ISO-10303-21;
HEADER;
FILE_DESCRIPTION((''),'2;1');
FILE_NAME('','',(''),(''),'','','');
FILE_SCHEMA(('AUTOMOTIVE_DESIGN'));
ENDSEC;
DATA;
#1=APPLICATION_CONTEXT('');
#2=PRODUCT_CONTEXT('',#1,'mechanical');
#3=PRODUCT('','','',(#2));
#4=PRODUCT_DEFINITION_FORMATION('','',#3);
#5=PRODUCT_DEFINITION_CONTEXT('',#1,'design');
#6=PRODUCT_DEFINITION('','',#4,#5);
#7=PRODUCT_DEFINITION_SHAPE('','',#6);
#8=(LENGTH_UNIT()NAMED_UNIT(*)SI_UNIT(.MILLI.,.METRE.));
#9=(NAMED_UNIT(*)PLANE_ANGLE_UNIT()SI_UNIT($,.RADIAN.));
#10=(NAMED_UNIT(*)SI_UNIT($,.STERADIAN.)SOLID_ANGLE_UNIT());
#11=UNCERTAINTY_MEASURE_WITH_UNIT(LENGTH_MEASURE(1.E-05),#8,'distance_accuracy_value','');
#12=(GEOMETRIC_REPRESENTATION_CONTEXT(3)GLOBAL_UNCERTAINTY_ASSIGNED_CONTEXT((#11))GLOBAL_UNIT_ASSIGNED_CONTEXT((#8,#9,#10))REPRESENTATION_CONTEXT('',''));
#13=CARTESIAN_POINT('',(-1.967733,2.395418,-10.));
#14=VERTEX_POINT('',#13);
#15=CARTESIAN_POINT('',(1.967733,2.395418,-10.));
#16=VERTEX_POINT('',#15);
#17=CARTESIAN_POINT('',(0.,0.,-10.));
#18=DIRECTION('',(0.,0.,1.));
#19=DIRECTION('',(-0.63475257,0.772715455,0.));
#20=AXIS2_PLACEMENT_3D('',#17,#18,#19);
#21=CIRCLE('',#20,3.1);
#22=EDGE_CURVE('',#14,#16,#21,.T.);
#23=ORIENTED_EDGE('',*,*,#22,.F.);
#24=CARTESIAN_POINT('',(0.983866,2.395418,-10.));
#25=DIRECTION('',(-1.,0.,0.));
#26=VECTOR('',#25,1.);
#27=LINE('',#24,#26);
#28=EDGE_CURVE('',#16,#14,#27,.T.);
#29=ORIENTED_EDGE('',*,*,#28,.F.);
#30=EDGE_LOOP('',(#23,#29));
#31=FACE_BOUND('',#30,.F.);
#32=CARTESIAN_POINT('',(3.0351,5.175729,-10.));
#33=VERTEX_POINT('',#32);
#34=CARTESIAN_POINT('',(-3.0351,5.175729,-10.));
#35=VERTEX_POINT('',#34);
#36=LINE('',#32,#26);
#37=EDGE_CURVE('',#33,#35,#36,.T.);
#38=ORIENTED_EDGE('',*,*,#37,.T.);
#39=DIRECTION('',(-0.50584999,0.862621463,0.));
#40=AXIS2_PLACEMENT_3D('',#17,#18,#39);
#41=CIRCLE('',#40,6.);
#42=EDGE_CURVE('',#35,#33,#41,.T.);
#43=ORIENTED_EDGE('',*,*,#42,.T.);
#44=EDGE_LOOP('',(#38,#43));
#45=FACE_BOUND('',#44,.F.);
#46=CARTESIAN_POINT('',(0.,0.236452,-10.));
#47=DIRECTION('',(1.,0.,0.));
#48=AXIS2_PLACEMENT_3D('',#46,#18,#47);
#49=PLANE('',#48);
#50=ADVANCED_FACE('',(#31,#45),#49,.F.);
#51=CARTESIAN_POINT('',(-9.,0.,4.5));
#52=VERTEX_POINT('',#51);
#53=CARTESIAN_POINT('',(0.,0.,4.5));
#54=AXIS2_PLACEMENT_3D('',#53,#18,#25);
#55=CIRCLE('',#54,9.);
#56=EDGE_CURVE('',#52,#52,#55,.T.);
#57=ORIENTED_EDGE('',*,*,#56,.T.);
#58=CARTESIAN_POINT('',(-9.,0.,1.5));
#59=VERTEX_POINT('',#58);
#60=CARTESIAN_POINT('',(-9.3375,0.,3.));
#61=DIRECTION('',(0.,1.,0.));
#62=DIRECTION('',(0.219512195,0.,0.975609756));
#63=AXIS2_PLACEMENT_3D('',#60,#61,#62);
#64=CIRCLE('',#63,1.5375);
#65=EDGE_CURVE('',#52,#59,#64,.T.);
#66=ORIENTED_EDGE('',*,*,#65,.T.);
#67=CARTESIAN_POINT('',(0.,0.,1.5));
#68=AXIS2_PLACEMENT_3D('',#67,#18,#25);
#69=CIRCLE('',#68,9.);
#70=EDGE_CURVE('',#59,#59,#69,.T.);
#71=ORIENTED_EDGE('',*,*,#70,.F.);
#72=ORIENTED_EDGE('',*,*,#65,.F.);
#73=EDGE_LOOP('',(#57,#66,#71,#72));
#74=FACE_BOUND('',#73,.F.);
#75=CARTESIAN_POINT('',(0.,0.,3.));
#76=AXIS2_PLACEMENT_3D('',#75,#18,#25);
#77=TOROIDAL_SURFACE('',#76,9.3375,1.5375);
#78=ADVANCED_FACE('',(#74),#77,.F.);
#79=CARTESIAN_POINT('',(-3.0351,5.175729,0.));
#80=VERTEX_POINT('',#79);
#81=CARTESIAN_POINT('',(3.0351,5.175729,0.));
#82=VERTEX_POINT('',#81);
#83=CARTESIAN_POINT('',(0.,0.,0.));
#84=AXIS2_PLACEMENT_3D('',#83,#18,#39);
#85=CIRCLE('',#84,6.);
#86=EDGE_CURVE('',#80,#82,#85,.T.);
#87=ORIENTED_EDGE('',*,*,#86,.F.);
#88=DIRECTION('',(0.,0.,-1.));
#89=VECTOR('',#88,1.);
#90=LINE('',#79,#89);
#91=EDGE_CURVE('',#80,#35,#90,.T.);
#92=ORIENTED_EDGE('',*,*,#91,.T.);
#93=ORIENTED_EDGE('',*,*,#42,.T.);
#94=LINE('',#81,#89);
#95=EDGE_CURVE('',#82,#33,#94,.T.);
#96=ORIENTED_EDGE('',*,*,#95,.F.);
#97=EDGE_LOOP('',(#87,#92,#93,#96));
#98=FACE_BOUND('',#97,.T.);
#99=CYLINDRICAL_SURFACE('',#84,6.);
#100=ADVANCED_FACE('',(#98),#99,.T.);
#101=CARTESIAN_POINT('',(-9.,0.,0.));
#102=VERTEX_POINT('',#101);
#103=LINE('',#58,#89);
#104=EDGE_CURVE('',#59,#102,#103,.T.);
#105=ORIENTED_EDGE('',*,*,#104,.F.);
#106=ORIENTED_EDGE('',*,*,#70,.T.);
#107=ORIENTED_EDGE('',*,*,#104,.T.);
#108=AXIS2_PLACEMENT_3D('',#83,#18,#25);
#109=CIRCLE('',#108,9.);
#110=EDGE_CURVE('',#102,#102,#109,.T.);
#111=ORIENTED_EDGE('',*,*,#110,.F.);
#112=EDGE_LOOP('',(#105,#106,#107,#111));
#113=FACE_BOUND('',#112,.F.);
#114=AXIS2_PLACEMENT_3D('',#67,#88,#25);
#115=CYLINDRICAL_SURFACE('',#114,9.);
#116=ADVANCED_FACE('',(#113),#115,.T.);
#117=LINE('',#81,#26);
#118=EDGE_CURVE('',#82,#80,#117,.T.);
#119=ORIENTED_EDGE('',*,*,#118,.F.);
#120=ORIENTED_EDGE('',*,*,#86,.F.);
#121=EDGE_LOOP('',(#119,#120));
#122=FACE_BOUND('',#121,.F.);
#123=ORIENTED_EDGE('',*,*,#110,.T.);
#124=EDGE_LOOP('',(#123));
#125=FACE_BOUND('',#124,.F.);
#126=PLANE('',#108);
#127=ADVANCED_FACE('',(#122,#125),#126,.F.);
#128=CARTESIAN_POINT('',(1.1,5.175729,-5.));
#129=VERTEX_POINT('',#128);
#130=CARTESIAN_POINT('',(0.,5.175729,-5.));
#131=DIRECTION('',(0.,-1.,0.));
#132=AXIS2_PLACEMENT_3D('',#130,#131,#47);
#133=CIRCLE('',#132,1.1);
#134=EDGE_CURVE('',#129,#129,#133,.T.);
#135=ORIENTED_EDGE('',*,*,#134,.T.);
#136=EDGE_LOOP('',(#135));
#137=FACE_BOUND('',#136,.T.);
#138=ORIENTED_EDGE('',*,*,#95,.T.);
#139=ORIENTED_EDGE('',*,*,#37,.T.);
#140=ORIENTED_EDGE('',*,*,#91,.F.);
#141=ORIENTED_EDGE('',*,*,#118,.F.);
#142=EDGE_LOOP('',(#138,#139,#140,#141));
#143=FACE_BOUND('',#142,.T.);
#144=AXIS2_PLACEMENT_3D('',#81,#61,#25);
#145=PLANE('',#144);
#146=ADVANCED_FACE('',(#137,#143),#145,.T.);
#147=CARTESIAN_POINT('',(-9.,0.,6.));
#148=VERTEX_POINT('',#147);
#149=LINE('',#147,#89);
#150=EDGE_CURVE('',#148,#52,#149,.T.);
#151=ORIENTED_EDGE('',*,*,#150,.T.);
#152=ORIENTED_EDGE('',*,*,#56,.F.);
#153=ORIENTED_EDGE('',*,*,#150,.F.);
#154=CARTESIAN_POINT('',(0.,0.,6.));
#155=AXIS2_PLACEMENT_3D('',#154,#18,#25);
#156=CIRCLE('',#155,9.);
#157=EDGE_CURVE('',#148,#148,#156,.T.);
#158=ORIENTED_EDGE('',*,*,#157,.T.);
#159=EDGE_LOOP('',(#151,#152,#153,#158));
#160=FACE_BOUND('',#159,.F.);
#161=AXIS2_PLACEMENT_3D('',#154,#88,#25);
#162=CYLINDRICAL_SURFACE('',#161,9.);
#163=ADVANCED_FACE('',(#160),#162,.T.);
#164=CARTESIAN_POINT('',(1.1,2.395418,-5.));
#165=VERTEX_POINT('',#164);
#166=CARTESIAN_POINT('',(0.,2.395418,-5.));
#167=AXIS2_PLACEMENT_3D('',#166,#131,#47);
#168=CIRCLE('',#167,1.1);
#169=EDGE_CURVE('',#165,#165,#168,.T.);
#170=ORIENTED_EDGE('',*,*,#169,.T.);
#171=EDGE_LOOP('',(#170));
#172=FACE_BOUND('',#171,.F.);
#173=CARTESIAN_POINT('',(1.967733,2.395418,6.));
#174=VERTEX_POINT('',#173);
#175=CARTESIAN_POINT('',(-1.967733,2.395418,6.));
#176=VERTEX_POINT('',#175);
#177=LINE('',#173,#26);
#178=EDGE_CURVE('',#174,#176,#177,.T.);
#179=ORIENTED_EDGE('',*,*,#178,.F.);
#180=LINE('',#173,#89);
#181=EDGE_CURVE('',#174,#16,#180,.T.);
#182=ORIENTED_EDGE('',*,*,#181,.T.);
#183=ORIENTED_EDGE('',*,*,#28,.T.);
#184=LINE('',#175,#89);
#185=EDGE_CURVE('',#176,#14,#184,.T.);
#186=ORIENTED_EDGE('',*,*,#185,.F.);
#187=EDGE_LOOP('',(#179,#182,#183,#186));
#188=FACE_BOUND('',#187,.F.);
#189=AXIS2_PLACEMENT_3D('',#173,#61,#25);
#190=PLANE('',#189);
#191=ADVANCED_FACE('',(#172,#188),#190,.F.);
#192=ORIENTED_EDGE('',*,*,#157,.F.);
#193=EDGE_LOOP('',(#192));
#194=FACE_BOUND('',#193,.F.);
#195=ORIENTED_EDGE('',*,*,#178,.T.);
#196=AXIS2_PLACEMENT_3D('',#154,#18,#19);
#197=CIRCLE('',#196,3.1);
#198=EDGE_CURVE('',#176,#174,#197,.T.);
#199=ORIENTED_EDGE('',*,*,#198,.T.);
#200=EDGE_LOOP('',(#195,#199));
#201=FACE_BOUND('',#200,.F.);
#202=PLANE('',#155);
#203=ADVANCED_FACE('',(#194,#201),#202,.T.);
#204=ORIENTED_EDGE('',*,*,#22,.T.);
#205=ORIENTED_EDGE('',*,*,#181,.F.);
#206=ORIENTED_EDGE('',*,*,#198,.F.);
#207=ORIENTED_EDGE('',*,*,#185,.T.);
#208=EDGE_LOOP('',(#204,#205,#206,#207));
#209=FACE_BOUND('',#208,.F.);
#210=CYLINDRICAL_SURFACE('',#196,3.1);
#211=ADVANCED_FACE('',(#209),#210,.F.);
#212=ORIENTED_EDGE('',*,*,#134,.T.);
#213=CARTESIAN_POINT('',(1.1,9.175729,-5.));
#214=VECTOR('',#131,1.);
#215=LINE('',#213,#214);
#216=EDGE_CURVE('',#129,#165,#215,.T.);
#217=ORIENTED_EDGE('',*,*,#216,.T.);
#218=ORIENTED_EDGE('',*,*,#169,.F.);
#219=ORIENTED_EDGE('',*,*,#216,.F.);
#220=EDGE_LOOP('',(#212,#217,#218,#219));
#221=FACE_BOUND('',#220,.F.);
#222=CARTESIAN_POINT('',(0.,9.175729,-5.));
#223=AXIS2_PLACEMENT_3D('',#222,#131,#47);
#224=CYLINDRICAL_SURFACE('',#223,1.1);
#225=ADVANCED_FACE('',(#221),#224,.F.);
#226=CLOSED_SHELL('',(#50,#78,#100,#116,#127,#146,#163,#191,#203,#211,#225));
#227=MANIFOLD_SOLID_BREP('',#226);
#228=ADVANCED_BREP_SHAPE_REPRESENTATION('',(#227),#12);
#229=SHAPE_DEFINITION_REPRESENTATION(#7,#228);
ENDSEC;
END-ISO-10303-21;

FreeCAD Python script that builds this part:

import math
import FreeCAD as App
import Part
import Sketcher
from FreeCAD import Vector
Q = App.Units.Quantity

doc = App.newDocument("Part")
params = doc.addObject("Spreadsheet::Sheet", "Params")
for row, (alias, value) in enumerate([
    ("sketch1_width", "9 mm"),
    ("sketch1_height", "6 mm"),
    ("sketch1_height2", "1.5 mm"),
    ("revolution_angle", "360 deg"),
    ("sketch2_radius", "6 mm"),
    ("pad1_length", "10 mm"),
    ("sketch3_radius", "3.1 mm"),
    ("sketch4_diameter", "2.2 mm"),
    ("hole_diameter", "2.2 mm"),
    ("hole_depth", "4 mm"),
], start=1):
    params.set(f"A{row}", alias)
    params.set(f"B{row}", "=" + value)
    params.setAlias(f"B{row}", alias)

body = doc.addObject("PartDesign::Body", "Body")

# Sketch on XZ plane
sketch1 = body.newObject("Sketcher::SketchObject", "Sketch")
sketch1.AttachmentSupport = (doc.getObject("XZ_Plane"), [""])
sketch1.MapMode = "FlatFace"
sketch1.addGeometry([
    Part.LineSegment(Vector(-9, 0, 0), Vector(0, 0, 0)),  # 0
    Part.LineSegment(Vector(0, 0, 0), Vector(0, 6, 0)),  # 1
    Part.LineSegment(Vector(0, 6, 0), Vector(-9, 6, 0)),  # 2
    Part.LineSegment(Vector(-9, 6, 0), Vector(-9, 4.5, 0)),  # 3
    Part.ArcOfCircle(Part.Circle(Vector(-9.3375, 3, 0), Vector(0, 0, 1), 1.5375), math.radians(-77.319617), math.radians(77.319617)),  # 4
    Part.LineSegment(Vector(-9, 1.5, 0), Vector(-9, 0, 0)),  # 5
], False)
sketch1.addConstraint([
    Sketcher.Constraint("Coincident", 0, 2, 1, 1),
    Sketcher.Constraint("Coincident", 1, 2, 2, 1),
    Sketcher.Constraint("Coincident", 2, 2, 3, 1),
    Sketcher.Constraint("Coincident", 3, 2, 4, 2),
    Sketcher.Constraint("Coincident", 4, 1, 5, 1),
    Sketcher.Constraint("Coincident", 5, 2, 0, 1),
    Sketcher.Constraint("Horizontal", 0),
    Sketcher.Constraint("Vertical", 1),
    Sketcher.Constraint("Horizontal", 2),
    Sketcher.Constraint("Vertical", 3),
    Sketcher.Constraint("Vertical", 5),
    Sketcher.Constraint("Coincident", 0, 2, -1, 1),
    Sketcher.Constraint("Vertical", 3, 2, 4, 1),
    Sketcher.Constraint("Equal", 3, 5),
    Sketcher.Constraint("DistanceX", 0, 1, 0, 2, Q("9 mm")),
    Sketcher.Constraint("DistanceY", 1, 1, 1, 2, Q("6 mm")),
    Sketcher.Constraint("DistanceY", 3, 2, 3, 1, Q("1.5 mm")),
    Sketcher.Constraint("Radius", 4, Q("1.5375 mm")),
])
sketch1.setExpression("Constraints[14]", "Params.sketch1_width")
sketch1.setExpression("Constraints[15]", "Params.sketch1_height")
sketch1.setExpression("Constraints[16]", "Params.sketch1_height2")
revolution = body.newObject("PartDesign::Revolution", "Revolution")
revolution.Profile = sketch1
revolution.ReferenceAxis = (sketch1, ["V_Axis"])
revolution.setExpression("Angle", "Params.revolution_angle")

# Sketch on XY plane
sketch2 = body.newObject("Sketcher::SketchObject", "Sketch001")
sketch2.AttachmentSupport = (doc.getObject("XY_Plane"), [""])
sketch2.MapMode = "FlatFace"
sketch2.addGeometry([
    Part.LineSegment(Vector(3.0351, 5.175729, 0), Vector(-3.0351, 5.175729, 0)),
    Part.ArcOfCircle(Part.Circle(Vector(0, 0, 0), Vector(0, 0, 1), 6), math.radians(120.387793), math.radians(419.612207)),
], False)
sketch2.addConstraint([
    Sketcher.Constraint("Coincident", 0, 1, 1, 2),
    Sketcher.Constraint("Coincident", 1, 1, 0, 2),
    Sketcher.Constraint("Horizontal", 0),
    Sketcher.Constraint("Coincident", 1, 3, -1, 1),
    Sketcher.Constraint("Radius", 1, Q("6 mm")),
    Sketcher.Constraint("DistanceX", 0, 2, 0, 1, Q("6.0702 mm")),
])
sketch2.setExpression("Constraints[4]", "Params.sketch2_radius")
pad1 = body.newObject("PartDesign::Pad", "Pad")
pad1.Profile = sketch2
pad1.setExpression("Length", "Params.pad1_length")
pad1.Reversed = True

# Sketch on XY plane
sketch3 = body.newObject("Sketcher::SketchObject", "Sketch002")
sketch3.AttachmentSupport = (doc.getObject("XY_Plane"), [""])
sketch3.MapMode = "FlatFace"
sketch3.AttachmentOffset = App.Placement(Vector(0, 0, 6), App.Rotation())
sketch3.addGeometry([
    Part.LineSegment(Vector(1.967733, 2.395418, 0), Vector(-1.967733, 2.395418, 0)),
    Part.ArcOfCircle(Part.Circle(Vector(0, 0, 0), Vector(0, 0, 1), 3.1), math.radians(129.401635), math.radians(410.598365)),
], False)
sketch3.addConstraint([
    Sketcher.Constraint("Coincident", 0, 1, 1, 2),
    Sketcher.Constraint("Coincident", 1, 1, 0, 2),
    Sketcher.Constraint("Horizontal", 0),
    Sketcher.Constraint("Coincident", 1, 3, -1, 1),
    Sketcher.Constraint("Radius", 1, Q("3.1 mm")),
    Sketcher.Constraint("DistanceX", 0, 2, 0, 1, Q("3.935466 mm")),
])
sketch3.setExpression("Constraints[4]", "Params.sketch3_radius")
pocket1 = body.newObject("PartDesign::Pocket", "Pocket")
pocket1.Profile = sketch3
pocket1.Type = "ThroughAll"

# Sketch on XZ plane
sketch4 = body.newObject("Sketcher::SketchObject", "Sketch003")
sketch4.AttachmentSupport = (doc.getObject("XZ_Plane"), [""])
sketch4.MapMode = "FlatFace"
sketch4.AttachmentOffset = App.Placement(Vector(0, 0, -5.175729), App.Rotation())
sketch4.addGeometry(Part.Circle(Vector(0, -5, 0), Vector(0, 0, 1), 1.1), False)
sketch4.addConstraint([
    Sketcher.Constraint("PointOnObject", 0, 3, -2),
    Sketcher.Constraint("Diameter", 0, Q("2.2 mm")),
    Sketcher.Constraint("DistanceY", 0, 3, -1, 1, Q("5 mm")),
])
sketch4.setExpression("Constraints[1]", "Params.sketch4_diameter")
doc.recompute()
hole = body.newObject("PartDesign::Hole", "Hole")
hole.Profile = sketch4
hole.ThreadType = "None"
hole.setExpression("Diameter", "Params.hole_diameter")
hole.DepthType = "Dimension"
hole.setExpression("Depth", "Params.hole_depth")
hole.DrillPoint = "Flat"
hole.Reversed = True

doc.recompute()
